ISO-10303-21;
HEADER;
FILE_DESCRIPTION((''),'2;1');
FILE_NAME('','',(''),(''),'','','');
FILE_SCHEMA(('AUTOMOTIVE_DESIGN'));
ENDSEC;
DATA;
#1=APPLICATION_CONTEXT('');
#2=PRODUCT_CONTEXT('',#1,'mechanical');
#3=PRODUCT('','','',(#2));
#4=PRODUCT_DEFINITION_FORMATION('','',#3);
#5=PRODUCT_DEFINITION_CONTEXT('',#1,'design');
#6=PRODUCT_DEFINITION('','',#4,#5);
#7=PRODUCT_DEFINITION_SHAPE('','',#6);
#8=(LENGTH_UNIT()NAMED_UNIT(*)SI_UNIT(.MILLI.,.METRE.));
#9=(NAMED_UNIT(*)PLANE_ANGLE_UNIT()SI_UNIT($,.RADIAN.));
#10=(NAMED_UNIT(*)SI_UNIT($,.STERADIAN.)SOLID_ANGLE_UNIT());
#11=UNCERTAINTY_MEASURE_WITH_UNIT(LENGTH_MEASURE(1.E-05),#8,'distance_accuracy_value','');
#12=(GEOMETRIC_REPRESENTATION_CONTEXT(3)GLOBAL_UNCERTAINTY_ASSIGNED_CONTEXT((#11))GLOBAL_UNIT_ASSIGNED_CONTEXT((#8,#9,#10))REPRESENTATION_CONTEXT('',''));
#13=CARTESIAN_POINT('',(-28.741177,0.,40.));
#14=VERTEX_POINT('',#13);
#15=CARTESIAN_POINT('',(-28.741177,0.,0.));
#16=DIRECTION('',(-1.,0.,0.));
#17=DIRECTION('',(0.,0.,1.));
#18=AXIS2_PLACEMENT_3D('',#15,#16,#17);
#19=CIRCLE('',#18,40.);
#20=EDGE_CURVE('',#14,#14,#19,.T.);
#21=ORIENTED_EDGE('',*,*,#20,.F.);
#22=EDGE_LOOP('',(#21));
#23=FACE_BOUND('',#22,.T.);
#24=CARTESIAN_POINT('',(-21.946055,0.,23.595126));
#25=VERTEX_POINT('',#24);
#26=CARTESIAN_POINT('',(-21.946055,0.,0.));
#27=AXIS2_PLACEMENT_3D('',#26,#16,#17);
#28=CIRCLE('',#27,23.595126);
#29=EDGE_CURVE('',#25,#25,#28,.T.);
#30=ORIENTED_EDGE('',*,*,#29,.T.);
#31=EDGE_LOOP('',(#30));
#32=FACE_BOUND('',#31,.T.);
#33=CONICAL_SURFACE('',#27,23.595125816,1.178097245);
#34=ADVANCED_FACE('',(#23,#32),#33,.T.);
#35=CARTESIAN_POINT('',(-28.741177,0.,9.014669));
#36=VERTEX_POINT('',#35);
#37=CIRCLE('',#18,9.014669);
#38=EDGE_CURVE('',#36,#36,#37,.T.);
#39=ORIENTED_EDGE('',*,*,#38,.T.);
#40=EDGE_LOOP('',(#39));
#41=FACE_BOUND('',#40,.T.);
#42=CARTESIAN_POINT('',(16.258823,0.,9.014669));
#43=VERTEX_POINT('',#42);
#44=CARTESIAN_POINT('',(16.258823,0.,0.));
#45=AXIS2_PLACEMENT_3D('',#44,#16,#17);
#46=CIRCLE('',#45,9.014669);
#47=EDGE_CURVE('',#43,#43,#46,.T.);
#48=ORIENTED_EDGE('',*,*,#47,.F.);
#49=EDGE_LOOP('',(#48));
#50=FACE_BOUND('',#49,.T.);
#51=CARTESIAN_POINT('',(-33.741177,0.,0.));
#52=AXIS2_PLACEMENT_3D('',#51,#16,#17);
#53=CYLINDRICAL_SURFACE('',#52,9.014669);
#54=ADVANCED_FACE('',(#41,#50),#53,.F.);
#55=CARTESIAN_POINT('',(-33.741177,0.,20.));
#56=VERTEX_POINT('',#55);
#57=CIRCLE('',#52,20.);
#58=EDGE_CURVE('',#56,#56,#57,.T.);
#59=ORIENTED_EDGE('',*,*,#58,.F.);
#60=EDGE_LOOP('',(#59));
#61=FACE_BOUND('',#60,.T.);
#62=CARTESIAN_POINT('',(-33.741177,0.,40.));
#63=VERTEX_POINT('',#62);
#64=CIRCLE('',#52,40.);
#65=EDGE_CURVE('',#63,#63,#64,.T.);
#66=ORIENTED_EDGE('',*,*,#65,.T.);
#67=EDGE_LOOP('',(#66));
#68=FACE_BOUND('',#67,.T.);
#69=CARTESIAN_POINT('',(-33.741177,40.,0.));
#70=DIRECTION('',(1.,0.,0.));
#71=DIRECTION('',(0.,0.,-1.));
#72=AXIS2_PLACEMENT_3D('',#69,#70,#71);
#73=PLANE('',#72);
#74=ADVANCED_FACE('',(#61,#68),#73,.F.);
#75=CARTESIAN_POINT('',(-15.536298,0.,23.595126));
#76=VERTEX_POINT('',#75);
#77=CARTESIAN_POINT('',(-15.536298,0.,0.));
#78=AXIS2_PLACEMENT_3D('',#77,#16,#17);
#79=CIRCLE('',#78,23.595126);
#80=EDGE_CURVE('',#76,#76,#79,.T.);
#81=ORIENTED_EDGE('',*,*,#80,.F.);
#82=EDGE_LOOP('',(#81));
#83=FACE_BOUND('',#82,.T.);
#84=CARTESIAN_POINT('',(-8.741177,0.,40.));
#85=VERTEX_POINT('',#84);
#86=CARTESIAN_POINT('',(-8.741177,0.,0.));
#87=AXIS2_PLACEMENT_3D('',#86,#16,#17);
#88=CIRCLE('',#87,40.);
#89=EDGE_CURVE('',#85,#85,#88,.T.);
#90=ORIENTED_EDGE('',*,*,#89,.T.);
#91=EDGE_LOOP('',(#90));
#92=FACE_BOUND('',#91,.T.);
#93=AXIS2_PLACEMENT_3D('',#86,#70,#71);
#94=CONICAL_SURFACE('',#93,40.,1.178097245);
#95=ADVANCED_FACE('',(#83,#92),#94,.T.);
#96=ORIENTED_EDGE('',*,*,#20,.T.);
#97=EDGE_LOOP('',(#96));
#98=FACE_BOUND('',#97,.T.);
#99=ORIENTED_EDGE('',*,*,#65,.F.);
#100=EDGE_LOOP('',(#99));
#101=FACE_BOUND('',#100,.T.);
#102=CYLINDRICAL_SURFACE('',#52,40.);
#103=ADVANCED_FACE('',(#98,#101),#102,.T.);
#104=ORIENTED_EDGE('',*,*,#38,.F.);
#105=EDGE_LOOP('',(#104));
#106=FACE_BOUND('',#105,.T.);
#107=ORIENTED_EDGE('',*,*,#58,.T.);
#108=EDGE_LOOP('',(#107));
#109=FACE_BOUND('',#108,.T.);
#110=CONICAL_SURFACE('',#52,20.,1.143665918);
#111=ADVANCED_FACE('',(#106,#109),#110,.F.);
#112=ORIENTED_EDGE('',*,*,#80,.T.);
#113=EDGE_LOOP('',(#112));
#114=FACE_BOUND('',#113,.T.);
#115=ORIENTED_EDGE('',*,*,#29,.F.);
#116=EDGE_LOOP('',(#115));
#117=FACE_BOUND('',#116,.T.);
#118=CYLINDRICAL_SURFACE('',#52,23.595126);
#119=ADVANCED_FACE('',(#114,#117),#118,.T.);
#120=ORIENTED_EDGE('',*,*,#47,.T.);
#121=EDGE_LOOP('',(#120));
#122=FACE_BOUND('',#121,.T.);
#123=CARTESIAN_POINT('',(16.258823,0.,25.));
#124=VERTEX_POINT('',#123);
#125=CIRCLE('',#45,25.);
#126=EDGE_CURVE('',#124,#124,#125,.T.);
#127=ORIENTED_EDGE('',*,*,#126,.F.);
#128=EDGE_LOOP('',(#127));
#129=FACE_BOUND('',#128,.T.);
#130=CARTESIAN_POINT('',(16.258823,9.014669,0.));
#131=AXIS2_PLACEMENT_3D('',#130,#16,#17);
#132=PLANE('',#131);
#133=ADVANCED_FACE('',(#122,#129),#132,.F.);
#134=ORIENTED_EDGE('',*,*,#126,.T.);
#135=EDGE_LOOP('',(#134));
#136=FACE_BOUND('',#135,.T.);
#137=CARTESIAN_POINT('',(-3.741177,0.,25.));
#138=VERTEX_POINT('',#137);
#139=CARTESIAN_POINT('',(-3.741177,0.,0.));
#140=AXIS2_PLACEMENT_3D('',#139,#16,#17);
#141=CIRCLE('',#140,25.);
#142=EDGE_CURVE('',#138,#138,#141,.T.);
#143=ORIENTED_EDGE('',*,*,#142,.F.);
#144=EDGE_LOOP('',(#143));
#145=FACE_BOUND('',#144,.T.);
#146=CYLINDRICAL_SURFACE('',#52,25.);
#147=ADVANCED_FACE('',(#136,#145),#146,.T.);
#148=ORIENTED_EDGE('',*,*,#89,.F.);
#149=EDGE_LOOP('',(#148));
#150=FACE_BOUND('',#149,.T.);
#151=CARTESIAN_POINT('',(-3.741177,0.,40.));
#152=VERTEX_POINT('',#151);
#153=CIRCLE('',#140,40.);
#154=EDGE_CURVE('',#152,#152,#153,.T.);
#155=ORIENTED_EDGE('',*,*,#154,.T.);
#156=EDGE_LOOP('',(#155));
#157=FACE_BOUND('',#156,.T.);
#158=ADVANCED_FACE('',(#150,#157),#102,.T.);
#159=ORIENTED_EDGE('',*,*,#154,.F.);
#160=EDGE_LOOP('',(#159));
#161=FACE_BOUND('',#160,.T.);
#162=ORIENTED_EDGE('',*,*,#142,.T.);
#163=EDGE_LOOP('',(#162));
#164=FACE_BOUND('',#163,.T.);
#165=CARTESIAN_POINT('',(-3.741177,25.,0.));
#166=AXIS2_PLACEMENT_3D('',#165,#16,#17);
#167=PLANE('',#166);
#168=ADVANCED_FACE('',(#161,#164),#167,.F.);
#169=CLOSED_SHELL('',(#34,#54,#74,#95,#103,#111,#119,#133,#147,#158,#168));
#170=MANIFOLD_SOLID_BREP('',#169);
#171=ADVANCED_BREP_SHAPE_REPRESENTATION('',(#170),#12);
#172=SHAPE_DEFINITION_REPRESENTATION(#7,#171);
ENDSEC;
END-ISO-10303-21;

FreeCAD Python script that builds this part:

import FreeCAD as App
import Part
import Sketcher
from FreeCAD import Vector
Q = App.Units.Quantity


def add_polygon(sketch, points):
    """Adds a closed chain of lines whose ends are joined by coincident constraints."""
    first, n = sketch.GeometryCount, len(points)
    for a, b in zip(points, points[1:] + points[:1]):
        sketch.addGeometry(Part.LineSegment(App.Vector(*a, 0), App.Vector(*b, 0)), False)
    for i in range(n):
        sketch.addConstraint(Sketcher.Constraint("Coincident", first + i, 2, first + (i + 1) % n, 1))

doc = App.newDocument("Part")
body = doc.addObject("PartDesign::Body", "Body")

sketch1 = body.newObject("Sketcher::SketchObject", "Sketch")
sketch1.AttachmentSupport = (doc.getObject("XY_Plane"), [""])
sketch1.MapMode = "FlatFace"
add_polygon(sketch1, [(-28.741177, 9.014669), (16.258823, 9.014669), (16.258823, 25), (-3.741177, 25), (-3.741177, 40), (-8.741177, 40), (-15.536298, 23.595126), (-21.946055, 23.595126), (-28.741177, 40), (-33.741177, 40), (-33.741177, 20)])
sketch1.addConstraint([
    Sketcher.Constraint("Horizontal", 0),
    Sketcher.Constraint("Vertical", 1),
    Sketcher.Constraint("Horizontal", 2),
    Sketcher.Constraint("Vertical", 3),
    Sketcher.Constraint("Horizontal", 4),
    Sketcher.Constraint("Horizontal", 6),
    Sketcher.Constraint("Horizontal", 8),
    Sketcher.Constraint("Vertical", 9),
    Sketcher.Constraint("Horizontal", 4, 2, 7, 2),
    Sketcher.Constraint("Vertical", 7, 2, 10, 2),
    Sketcher.Constraint("Equal", 4, 8),
    Sketcher.Constraint("Equal", 2, 9),
    Sketcher.Constraint("Equal", 5, 7),
    Sketcher.Constraint("DistanceX", 0, 1, 0, 2, 45.0),
    Sketcher.Constraint("DistanceX", 2, 2, 2, 1, 20.0),
    Sketcher.Constraint("DistanceX", 4, 2, 4, 1, 5.0),
    Sketcher.Constraint("DistanceY", 3, 1, 3, 2, 15.0),
    Sketcher.Constraint("DistanceY", -1, 1, 1, 2, 25.0),
    Sketcher.Constraint("Angle", 5, Q("-112.5 deg")),
    Sketcher.Constraint("DistanceY", 1, 1, 1, 2, 15.985331),
    Sketcher.Constraint("DistanceX", 5, 2, -1, 1, 15.536298),
    Sketcher.Constraint("DistanceX", 6, 2, 6, 1, 6.409757),
])
revolution = body.newObject("PartDesign::Revolution", "Revolution")
revolution.Profile = sketch1
revolution.ReferenceAxis = (sketch1, ["H_Axis"])
revolution.Angle = 360

doc.recompute()
